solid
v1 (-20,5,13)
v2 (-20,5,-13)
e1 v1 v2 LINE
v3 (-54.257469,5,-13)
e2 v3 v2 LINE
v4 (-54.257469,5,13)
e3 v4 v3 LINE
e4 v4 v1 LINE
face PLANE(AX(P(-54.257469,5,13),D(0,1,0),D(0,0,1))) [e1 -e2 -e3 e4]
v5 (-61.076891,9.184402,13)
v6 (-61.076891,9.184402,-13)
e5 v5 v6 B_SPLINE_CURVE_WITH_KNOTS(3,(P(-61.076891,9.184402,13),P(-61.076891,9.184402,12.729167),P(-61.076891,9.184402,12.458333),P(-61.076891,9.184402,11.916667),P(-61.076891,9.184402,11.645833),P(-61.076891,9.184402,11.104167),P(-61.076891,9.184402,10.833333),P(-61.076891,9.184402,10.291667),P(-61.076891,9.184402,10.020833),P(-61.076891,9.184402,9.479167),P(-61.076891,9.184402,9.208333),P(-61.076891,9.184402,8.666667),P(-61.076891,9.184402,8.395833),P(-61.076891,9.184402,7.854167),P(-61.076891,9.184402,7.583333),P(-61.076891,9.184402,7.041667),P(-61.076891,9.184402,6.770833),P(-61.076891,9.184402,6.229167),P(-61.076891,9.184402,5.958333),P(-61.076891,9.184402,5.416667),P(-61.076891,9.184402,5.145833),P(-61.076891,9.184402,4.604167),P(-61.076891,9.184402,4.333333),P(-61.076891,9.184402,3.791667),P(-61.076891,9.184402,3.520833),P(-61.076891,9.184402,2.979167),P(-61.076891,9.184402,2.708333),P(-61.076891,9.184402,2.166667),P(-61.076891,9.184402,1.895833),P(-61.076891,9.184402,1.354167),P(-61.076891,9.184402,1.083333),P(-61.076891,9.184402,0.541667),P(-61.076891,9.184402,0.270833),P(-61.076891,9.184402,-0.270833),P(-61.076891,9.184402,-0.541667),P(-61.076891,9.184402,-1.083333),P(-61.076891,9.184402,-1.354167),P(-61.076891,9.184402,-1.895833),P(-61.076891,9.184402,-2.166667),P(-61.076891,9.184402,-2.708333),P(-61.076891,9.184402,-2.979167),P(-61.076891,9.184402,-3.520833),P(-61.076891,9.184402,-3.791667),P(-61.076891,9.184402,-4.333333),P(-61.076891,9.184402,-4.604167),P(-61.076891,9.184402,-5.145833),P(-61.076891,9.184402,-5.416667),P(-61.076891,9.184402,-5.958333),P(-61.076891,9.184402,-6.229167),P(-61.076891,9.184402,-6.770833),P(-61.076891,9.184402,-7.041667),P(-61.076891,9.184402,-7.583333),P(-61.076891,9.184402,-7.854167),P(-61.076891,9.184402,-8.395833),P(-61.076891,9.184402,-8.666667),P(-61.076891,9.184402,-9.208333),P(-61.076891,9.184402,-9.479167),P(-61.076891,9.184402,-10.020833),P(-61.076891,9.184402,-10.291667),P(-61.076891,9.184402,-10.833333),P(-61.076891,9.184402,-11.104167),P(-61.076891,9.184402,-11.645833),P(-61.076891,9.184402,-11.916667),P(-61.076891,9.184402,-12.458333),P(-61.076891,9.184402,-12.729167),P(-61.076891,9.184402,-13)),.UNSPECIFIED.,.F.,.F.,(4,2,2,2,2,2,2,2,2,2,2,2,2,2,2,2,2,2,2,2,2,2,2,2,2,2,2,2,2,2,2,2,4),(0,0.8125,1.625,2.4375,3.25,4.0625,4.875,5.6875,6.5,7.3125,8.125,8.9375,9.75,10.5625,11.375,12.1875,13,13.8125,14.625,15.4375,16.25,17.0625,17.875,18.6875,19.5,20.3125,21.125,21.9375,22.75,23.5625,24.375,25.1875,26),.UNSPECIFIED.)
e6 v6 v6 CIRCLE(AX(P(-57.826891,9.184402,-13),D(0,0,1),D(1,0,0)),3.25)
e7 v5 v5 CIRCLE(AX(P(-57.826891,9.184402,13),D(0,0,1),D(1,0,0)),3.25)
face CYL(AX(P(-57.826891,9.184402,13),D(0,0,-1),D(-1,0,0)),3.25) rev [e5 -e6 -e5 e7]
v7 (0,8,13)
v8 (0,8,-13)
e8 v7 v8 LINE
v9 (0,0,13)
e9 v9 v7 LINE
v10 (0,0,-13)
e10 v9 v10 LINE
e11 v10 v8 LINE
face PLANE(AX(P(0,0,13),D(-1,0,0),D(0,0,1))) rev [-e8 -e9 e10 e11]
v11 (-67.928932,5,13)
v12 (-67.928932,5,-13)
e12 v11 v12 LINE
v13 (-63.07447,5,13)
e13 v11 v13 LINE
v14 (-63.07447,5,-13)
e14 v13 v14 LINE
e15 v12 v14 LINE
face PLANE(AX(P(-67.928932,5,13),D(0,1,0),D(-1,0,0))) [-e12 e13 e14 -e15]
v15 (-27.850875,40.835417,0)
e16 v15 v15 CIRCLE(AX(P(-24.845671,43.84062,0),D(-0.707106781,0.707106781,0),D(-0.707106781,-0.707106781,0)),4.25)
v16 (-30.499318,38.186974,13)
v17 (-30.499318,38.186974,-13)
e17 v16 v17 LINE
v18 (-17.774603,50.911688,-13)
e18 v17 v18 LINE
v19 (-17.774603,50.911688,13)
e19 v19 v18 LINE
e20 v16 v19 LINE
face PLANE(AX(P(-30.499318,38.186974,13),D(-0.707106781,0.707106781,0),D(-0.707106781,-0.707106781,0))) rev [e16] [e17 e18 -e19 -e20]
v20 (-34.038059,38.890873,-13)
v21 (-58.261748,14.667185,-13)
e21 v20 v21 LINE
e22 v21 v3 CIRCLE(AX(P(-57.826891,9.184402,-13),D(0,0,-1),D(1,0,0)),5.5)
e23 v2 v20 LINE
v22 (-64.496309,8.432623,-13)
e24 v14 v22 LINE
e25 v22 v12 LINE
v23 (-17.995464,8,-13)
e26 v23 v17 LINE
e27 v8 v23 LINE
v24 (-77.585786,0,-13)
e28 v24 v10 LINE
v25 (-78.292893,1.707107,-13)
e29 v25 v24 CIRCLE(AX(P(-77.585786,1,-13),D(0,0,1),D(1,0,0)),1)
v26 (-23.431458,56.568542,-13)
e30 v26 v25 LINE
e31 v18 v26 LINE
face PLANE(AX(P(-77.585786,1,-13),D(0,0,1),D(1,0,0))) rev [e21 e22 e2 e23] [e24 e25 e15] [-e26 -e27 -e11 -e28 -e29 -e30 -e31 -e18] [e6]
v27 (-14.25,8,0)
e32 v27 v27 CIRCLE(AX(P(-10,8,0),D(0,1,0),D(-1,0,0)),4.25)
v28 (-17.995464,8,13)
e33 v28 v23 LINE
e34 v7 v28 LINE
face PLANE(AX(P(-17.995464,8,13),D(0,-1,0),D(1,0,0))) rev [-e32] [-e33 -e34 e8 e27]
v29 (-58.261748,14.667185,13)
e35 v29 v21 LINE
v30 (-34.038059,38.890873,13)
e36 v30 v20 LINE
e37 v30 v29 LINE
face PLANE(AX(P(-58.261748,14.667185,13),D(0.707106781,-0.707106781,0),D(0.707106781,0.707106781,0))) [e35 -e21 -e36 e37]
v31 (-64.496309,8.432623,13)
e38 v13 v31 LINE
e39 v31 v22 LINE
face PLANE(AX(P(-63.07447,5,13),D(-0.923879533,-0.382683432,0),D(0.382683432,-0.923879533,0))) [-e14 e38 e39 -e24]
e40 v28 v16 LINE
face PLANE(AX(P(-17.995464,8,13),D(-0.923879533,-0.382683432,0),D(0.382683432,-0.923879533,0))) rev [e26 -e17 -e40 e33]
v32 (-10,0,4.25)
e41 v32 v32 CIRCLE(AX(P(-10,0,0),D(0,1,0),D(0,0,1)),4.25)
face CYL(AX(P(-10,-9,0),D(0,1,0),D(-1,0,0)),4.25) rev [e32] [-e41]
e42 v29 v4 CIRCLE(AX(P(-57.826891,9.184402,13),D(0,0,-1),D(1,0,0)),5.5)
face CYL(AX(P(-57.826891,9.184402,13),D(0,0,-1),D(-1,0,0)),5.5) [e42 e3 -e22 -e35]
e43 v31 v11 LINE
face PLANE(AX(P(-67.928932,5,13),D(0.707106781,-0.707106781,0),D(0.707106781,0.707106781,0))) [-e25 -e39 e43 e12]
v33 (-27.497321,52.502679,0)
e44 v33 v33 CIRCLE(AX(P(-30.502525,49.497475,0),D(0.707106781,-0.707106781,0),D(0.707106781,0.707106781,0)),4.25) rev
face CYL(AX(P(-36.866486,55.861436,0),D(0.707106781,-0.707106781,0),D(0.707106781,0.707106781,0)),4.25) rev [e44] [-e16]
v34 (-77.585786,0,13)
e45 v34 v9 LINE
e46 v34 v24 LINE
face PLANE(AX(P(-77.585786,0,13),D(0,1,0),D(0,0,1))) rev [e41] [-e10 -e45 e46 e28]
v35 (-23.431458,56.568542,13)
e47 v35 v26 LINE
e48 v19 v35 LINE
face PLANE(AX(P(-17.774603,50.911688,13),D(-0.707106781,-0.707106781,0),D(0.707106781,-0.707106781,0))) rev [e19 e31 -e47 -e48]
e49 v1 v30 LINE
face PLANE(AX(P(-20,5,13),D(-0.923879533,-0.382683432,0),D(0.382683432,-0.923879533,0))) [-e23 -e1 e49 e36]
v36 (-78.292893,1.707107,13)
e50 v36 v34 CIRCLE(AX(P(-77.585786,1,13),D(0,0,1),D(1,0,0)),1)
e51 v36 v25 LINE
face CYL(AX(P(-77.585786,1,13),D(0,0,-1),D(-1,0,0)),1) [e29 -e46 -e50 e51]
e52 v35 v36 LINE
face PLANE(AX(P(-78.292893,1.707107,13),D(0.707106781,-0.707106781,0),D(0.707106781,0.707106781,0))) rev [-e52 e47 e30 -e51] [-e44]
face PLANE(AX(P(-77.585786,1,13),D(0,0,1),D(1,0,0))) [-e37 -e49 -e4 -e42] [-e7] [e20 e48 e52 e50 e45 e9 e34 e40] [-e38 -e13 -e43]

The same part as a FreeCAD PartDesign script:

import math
import FreeCAD as App
import Part
import Sketcher
Q = App.Units.Quantity


def add_polygon(sketch, points):
    """Adds a closed chain of lines whose ends are joined by coincident constraints."""
    first, n = sketch.GeometryCount, len(points)
    for a, b in zip(points, points[1:] + points[:1]):
        sketch.addGeometry(Part.LineSegment(App.Vector(*a, 0), App.Vector(*b, 0)), False)
    for i in range(n):
        sketch.addConstraint(Sketcher.Constraint("Coincident", first + i, 2, first + (i + 1) % n, 1))

doc = App.newDocument("Part")
params = doc.addObject("Spreadsheet::Sheet", "Params")
for row, (alias, value) in enumerate([
    ("sketch1_radius", "1 mm"),
    ("sketch1_diameter", "6.5 mm"),
    ("sketch1_radius2", "5.5 mm"),
    ("sketch1_height", "8 mm"),
    ("sketch1_length", "8 mm"),
    ("pad1_length", "26 mm"),
    ("sketch2_diameter", "8.5 mm"),
    ("pocket1_length", "17 mm"),
], start=1):
    params.set(f"A{row}", alias)
    params.set(f"B{row}", "=" + value)
    params.setAlias(f"B{row}", alias)

body = doc.addObject("PartDesign::Body", "Body")

sketch1 = body.newObject("Sketcher::SketchObject", "Sketch")
sketch1.AttachmentSupport = (doc.getObject("XY_Plane"), [""])
sketch1.MapMode = "FlatFace"
sketch1.addGeometry(Part.LineSegment(App.Vector(-77.6, 0, 0), App.Vector(0, 0, 0)), False)
sketch1.addGeometry(Part.LineSegment(App.Vector(0, 0, 0), App.Vector(0, 8, 0)), False)
sketch1.addGeometry(Part.LineSegment(App.Vector(0, 8, 0), App.Vector(-18, 8, 0)), False)
sketch1.addGeometry(Part.LineSegment(App.Vector(-18, 8, 0), App.Vector(-30.5, 38.2, 0)), False)
sketch1.addGeometry(Part.LineSegment(App.Vector(-30.5, 38.2, 0), App.Vector(-17.8, 50.9, 0)), False)
sketch1.addGeometry(Part.LineSegment(App.Vector(-17.8, 50.9, 0), App.Vector(-23.4, 56.6, 0)), False)
sketch1.addGeometry(Part.LineSegment(App.Vector(-23.4, 56.6, 0), App.Vector(-78.3, 1.7, 0)), False)
sketch1.addGeometry(Part.ArcOfCircle(Part.Circle(App.Vector(-77.6, 1, 0), App.Vector(0, 0, 1), 1), math.radians(135), math.radians(270)), False)
add_polygon(sketch1, [(-63.1, 5), (-67.9, 5), (-64.5, 8.4)])
sketch1.addGeometry(Part.Circle(App.Vector(-57.8, 9.2, 0), App.Vector(0, 0, 1), 3.2), False)
sketch1.addGeometry(Part.LineSegment(App.Vector(-20, 5, 0), App.Vector(-54.3, 5, 0)), False)
sketch1.addGeometry(Part.ArcOfCircle(Part.Circle(App.Vector(-57.8, 9.2, 0), App.Vector(0, 0, 1), 5.5), math.radians(-50), math.radians(95)), False)
sketch1.addGeometry(Part.LineSegment(App.Vector(-58.3, 14.7, 0), App.Vector(-34, 38.9, 0)), False)
sketch1.addGeometry(Part.LineSegment(App.Vector(-34, 38.9, 0), App.Vector(-20, 5, 0)), False)
sketch1.addConstraint(Sketcher.Constraint("Coincident", 0, 2, 1, 1))
sketch1.addConstraint(Sketcher.Constraint("Coincident", 1, 2, 2, 1))
sketch1.addConstraint(Sketcher.Constraint("Coincident", 2, 2, 3, 1))
sketch1.addConstraint(Sketcher.Constraint("Coincident", 3, 2, 4, 1))
sketch1.addConstraint(Sketcher.Constraint("Coincident", 4, 2, 5, 1))
sketch1.addConstraint(Sketcher.Constraint("Coincident", 5, 2, 6, 1))
sketch1.addConstraint(Sketcher.Constraint("Tangent", 6, 2, 7, 1))
sketch1.addConstraint(Sketcher.Constraint("Tangent", 7, 2, 0, 1))
sketch1.addConstraint(Sketcher.Constraint("Coincident", 12, 2, 13, 1))
sketch1.addConstraint(Sketcher.Constraint("Coincident", 13, 2, 14, 1))
sketch1.addConstraint(Sketcher.Constraint("Coincident", 14, 2, 15, 1))
sketch1.addConstraint(Sketcher.Constraint("Coincident", 15, 2, 12, 1))
sketch1.addConstraint(Sketcher.Constraint("Horizontal", 0))
sketch1.addConstraint(Sketcher.Constraint("Vertical", 1))
sketch1.addConstraint(Sketcher.Constraint("Horizontal", 2))
sketch1.addConstraint(Sketcher.Constraint("Horizontal", 8))
sketch1.addConstraint(Sketcher.Constraint("Horizontal", 12))
sketch1.addConstraint(Sketcher.Constraint("Coincident", 0, 2, -1, 1))
sketch1.addConstraint(Sketcher.Constraint("Coincident", 13, 3, 11, 3))
sketch1.addConstraint(Sketcher.Constraint("Perpendicular", 4, 5))
sketch1.addConstraint(Sketcher.Constraint("Perpendicular", 5, 6))
sketch1.addConstraint(Sketcher.Constraint("Parallel", 6, 9))
sketch1.addConstraint(Sketcher.Constraint("Parallel", 3, 10))
sketch1.addConstraint(Sketcher.Constraint("Parallel", 9, 14))
sketch1.addConstraint(Sketcher.Constraint("Parallel", 10, 15))
sketch1.addConstraint(Sketcher.Constraint("Horizontal", 10, 2, 12, 2))
sketch1.addConstraint(Sketcher.Constraint("Radius", 7, 1.0))
sketch1.addConstraint(Sketcher.Constraint("Diameter", 11, 6.5))
sketch1.addConstraint(Sketcher.Constraint("Radius", 13, 5.5))
sketch1.addConstraint(Sketcher.Constraint("DistanceY", 1, 1, 1, 2, 8.0))
sketch1.addConstraint(Sketcher.Constraint("Angle", 4, Q("45 deg")))
sketch1.addConstraint(Sketcher.Constraint("Distance", 5, 8.0))
sketch1.addConstraint(Sketcher.Constraint("DistanceY", -1, 1, 8, 2, 5.0))
sketch1.addConstraint(Sketcher.Constraint("DistanceX", 15, 2, -1, 1, 20.0))
sketch1.addConstraint(Sketcher.Constraint("Angle", 3, Q("112.5 deg")))
sketch1.addConstraint(Sketcher.Constraint("DistanceX", 6, 2, 11, 3, 20.466002))
sketch1.addConstraint(Sketcher.Constraint("DistanceX", 10, 2, 12, 2, 8.817002))
sketch1.addConstraint(Sketcher.Constraint("DistanceX", 8, 2, 8, 1, 4.854462))
sketch1.addConstraint(Sketcher.Constraint("DistanceX", 12, 2, 12, 1, 34.257469))
sketch1.addConstraint(Sketcher.Constraint("DistanceY", 3, 2, 14, 2, 0.703899))
sketch1.addConstraint(Sketcher.Constraint("DistanceX", 14, 2, 5, 2, 10.606602))
sketch1.addConstraint(Sketcher.Constraint("Distance", 14, 34.257469))
sketch1.addConstraint(Sketcher.Constraint("DistanceX", 0, 1, 0, 2, 77.585786))
sketch1.setExpression("Constraints[29]", "Params.sketch1_radius")
sketch1.setExpression("Constraints[30]", "Params.sketch1_diameter")
sketch1.setExpression("Constraints[31]", "Params.sketch1_radius2")
sketch1.setExpression("Constraints[32]", "Params.sketch1_height")
sketch1.setExpression("Constraints[34]", "Params.sketch1_length")
pad1 = body.newObject("PartDesign::Pad", "Pad")
pad1.Profile = sketch1
pad1.setExpression("Length", "Params.pad1_length")
pad1.Midplane = True

sketch2 = body.newObject("Sketcher::SketchObject", "Sketch001")
sketch2.AttachmentSupport = (doc.getObject("XZ_Plane"), [""])
sketch2.MapMode = "FlatFace"
sketch2.AttachmentOffset = App.Placement(App.Vector(0, 0, -8), App.Rotation())
sketch2.addGeometry(Part.Circle(App.Vector(-10, 0, 0), App.Vector(0, 0, 1), 4.2), False)
sketch2.addConstraint(Sketcher.Constraint("PointOnObject", 0, 3, -1))
sketch2.addConstraint(Sketcher.Constraint("Diameter", 0, 8.5))
sketch2.addConstraint(Sketcher.Constraint("DistanceX", 0, 3, -1, 1, 10.0))
sketch2.setExpression("Constraints[1]", "Params.sketch2_diameter")
pocket1 = body.newObject("PartDesign::Pocket", "Pocket")
pocket1.Profile = sketch2
pocket1.setExpression("Length", "Params.pocket1_length")
pocket1.Reversed = True
doc.recompute()

datumplane = body.newObject("PartDesign::Plane", "DatumPlane")
datumplane.Placement = App.Placement(App.Vector(-11.715729, 28.284271, 0), App.Rotation(App.Vector(0.923879533, 0.382683432, 0), App.Vector(0, 0, -1), App.Vector(-0.382683432, 0.923879533, 0), "ZXY"))
mirrored = body.newObject("PartDesign::Mirrored", "Mirrored")
mirrored.Originals = [pocket1]
mirrored.MirrorPlane = (datumplane, [""])
body.Tip = mirrored

doc.recompute()
